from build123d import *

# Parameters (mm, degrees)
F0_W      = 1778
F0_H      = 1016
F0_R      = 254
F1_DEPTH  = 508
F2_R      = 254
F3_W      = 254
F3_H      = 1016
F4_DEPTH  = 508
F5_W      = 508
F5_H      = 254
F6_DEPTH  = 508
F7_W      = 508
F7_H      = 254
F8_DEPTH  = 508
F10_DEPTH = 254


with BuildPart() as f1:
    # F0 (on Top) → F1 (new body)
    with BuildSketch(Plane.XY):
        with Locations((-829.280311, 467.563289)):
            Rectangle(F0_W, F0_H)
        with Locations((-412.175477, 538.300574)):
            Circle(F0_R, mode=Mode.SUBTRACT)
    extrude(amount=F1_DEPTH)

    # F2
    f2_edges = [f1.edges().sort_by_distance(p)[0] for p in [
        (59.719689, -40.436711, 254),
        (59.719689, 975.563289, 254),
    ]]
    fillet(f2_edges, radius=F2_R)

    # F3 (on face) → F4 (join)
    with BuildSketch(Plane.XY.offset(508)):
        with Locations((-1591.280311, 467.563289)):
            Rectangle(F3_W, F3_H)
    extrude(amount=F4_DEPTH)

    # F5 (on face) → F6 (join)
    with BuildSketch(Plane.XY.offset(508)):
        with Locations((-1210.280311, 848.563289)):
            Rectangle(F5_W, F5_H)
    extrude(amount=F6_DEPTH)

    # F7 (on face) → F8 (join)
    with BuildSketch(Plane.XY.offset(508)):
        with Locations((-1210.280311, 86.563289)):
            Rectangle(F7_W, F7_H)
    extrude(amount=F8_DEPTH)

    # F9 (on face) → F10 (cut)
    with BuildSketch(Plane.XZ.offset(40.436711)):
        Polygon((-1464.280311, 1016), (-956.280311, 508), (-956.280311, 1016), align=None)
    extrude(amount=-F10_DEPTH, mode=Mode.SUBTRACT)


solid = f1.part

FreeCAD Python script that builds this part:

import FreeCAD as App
import Part
import Sketcher

V = App.Vector
Q = App.Units.Quantity


def edges_at(feature, points):
    """Names of the edges that pass closest to the given points."""
    edges = feature.Shape.Edges
    near = lambda p: min(range(len(edges)), key=lambda i: edges[i].distToShape(Part.Vertex(*p))[0])
    return sorted({f"Edge{near(p) + 1}" for p in points})


def add_polygon(sketch, points):
    """Adds a closed chain of lines whose ends are joined by coincident constraints."""
    first, n = sketch.GeometryCount, len(points)
    for a, b in zip(points, points[1:] + points[:1]):
        sketch.addGeometry(Part.LineSegment(App.Vector(*a, 0), App.Vector(*b, 0)), False)
    for i in range(n):
        sketch.addConstraint(Sketcher.Constraint("Coincident", first + i, 2, first + (i + 1) % n, 1))

doc = App.newDocument("Part")
body = doc.addObject("PartDesign::Body", "Body")

# Sketch on XY plane
sketch1 = body.newObject("Sketcher::SketchObject", "Sketch")
sketch1.AttachmentSupport = (doc.getObject("XY_Plane"), [""])
sketch1.MapMode = "FlatFace"
add_polygon(sketch1, [(-1718, 976), (-1718, -40), (60, -40), (60, 976)])  # lines 0-3
sketch1.addGeometry(Part.Circle(V(-412, 538, 0), V(0, 0, 1), 254), False)  # 4
sketch1.addConstraint(Sketcher.Constraint("Vertical", 0))
sketch1.addConstraint(Sketcher.Constraint("Horizontal", 1))
sketch1.addConstraint(Sketcher.Constraint("Vertical", 2))
sketch1.addConstraint(Sketcher.Constraint("Horizontal", 3))
sketch1.addConstraint(Sketcher.Constraint("Diameter", 4, Q("20 in")))
sketch1.addConstraint(Sketcher.Constraint("DistanceX", 1, 1, 1, 2, Q("70 in")))
sketch1.addConstraint(Sketcher.Constraint("DistanceY", 0, 2, 0, 1, Q("40 in")))
sketch1.addConstraint(Sketcher.Constraint("DistanceX", 0, 2, -1, 1, 1718.280311))
sketch1.addConstraint(Sketcher.Constraint("DistanceY", 0, 2, -1, 1, 40.436711))
sketch1.addConstraint(Sketcher.Constraint("DistanceX", 4, 3, -1, 1, 412.175477))
sketch1.addConstraint(Sketcher.Constraint("DistanceY", -1, 1, 4, 3, 538.300574))
pad1 = body.newObject("PartDesign::Pad", "Pad")
pad1.Profile = sketch1
pad1.Length = Q("20 in")
doc.recompute()

fillet = body.newObject("PartDesign::Fillet", "Fillet")
fillet.Base = (pad1, edges_at(pad1, [(59.72, -40.437, 254), (59.72, 975.563, 254)]))
fillet.Radius = Q("10 in")

# Sketch on XY plane
sketch2 = body.newObject("Sketcher::SketchObject", "Sketch001")
sketch2.AttachmentSupport = (doc.getObject("XY_Plane"), [""])
sketch2.MapMode = "FlatFace"
sketch2.AttachmentOffset = App.Placement(V(0, 0, 20 * 25.4), App.Rotation())
add_polygon(sketch2, [(-1718, 976), (-1718, -40), (-1464, -40), (-1464, 976)])  # lines 0-3
sketch2.addConstraint(Sketcher.Constraint("Vertical", 0))
sketch2.addConstraint(Sketcher.Constraint("Horizontal", 1))
sketch2.addConstraint(Sketcher.Constraint("Vertical", 2))
sketch2.addConstraint(Sketcher.Constraint("Horizontal", 3))
sketch2.addConstraint(Sketcher.Constraint("DistanceX", 1, 1, 1, 2, Q("10 in")))
sketch2.addConstraint(Sketcher.Constraint("DistanceY", 0, 2, 0, 1, Q("40 in")))
sketch2.addConstraint(Sketcher.Constraint("DistanceX", 0, 2, -1, 1, 1718.280311))
sketch2.addConstraint(Sketcher.Constraint("DistanceY", 0, 2, -1, 1, 40.436711))
pad2 = body.newObject("PartDesign::Pad", "Pad001")
pad2.Profile = sketch2
pad2.Length = Q("20 in")

# Sketch on XY plane
sketch3 = body.newObject("Sketcher::SketchObject", "Sketch002")
sketch3.AttachmentSupport = (doc.getObject("XY_Plane"), [""])
sketch3.MapMode = "FlatFace"
sketch3.AttachmentOffset = App.Placement(V(0, 0, 20 * 25.4), App.Rotation())
add_polygon(sketch3, [(-1464, 976), (-1464, 722), (-956, 722), (-956, 976)])  # lines 0-3
sketch3.addConstraint(Sketcher.Constraint("Vertical", 0))
sketch3.addConstraint(Sketcher.Constraint("Horizontal", 1))
sketch3.addConstraint(Sketcher.Constraint("Vertical", 2))
sketch3.addConstraint(Sketcher.Constraint("Horizontal", 3))
sketch3.addConstraint(Sketcher.Constraint("DistanceX", 1, 1, 1, 2, Q("20 in")))
sketch3.addConstraint(Sketcher.Constraint("DistanceY", 0, 2, 0, 1, Q("10 in")))
sketch3.addConstraint(Sketcher.Constraint("DistanceX", 0, 2, -1, 1, 1464.280311))
sketch3.addConstraint(Sketcher.Constraint("DistanceY", -1, 1, 0, 2, 721.563289))
pad3 = body.newObject("PartDesign::Pad", "Pad002")
pad3.Profile = sketch3
pad3.Length = Q("20 in")

# Sketch on XY plane
sketch4 = body.newObject("Sketcher::SketchObject", "Sketch003")
sketch4.AttachmentSupport = (doc.getObject("XY_Plane"), [""])
sketch4.MapMode = "FlatFace"
sketch4.AttachmentOffset = App.Placement(V(0, 0, 20 * 25.4), App.Rotation())
add_polygon(sketch4, [(-1464, 214), (-1464, -40), (-956, -40), (-956, 214)])  # lines 0-3
sketch4.addConstraint(Sketcher.Constraint("Vertical", 0))
sketch4.addConstraint(Sketcher.Constraint("Horizontal", 1))
sketch4.addConstraint(Sketcher.Constraint("Vertical", 2))
sketch4.addConstraint(Sketcher.Constraint("Horizontal", 3))
sketch4.addConstraint(Sketcher.Constraint("DistanceX", 1, 1, 1, 2, Q("20 in")))
sketch4.addConstraint(Sketcher.Constraint("DistanceY", 0, 2, 0, 1, Q("10 in")))
sketch4.addConstraint(Sketcher.Constraint("DistanceX", 0, 2, -1, 1, 1464.280311))
sketch4.addConstraint(Sketcher.Constraint("DistanceY", 0, 2, -1, 1, 40.436711))
pad4 = body.newObject("PartDesign::Pad", "Pad003")
pad4.Profile = sketch4
pad4.Length = Q("20 in")

# Sketch on XZ plane
sketch5 = body.newObject("Sketcher::SketchObject", "Sketch004")
sketch5.AttachmentSupport = (doc.getObject("XZ_Plane"), [""])
sketch5.MapMode = "FlatFace"
sketch5.AttachmentOffset = App.Placement(V(0, 0, 40.436711), App.Rotation())
add_polygon(sketch5, [(-1464, 1016), (-956, 508), (-956, 1016)])  # lines 0-2
sketch5.addConstraint(Sketcher.Constraint("Vertical", 1))
sketch5.addConstraint(Sketcher.Constraint("Horizontal", 2))
sketch5.addConstraint(Sketcher.Constraint("Equal", 2, 1))
sketch5.addConstraint(Sketcher.Constraint("DistanceX", 2, 2, 2, 1, Q("20 in")))
sketch5.addConstraint(Sketcher.Constraint("DistanceY", -1, 1, 0, 2, Q("20 in")))
sketch5.addConstraint(Sketcher.Constraint("DistanceX", 0, 2, -1, 1, 956.280311))
pocket1 = body.newObject("PartDesign::Pocket", "Pocket")
pocket1.Profile = sketch5
pocket1.Length = Q("10 in")

doc.recompute()
